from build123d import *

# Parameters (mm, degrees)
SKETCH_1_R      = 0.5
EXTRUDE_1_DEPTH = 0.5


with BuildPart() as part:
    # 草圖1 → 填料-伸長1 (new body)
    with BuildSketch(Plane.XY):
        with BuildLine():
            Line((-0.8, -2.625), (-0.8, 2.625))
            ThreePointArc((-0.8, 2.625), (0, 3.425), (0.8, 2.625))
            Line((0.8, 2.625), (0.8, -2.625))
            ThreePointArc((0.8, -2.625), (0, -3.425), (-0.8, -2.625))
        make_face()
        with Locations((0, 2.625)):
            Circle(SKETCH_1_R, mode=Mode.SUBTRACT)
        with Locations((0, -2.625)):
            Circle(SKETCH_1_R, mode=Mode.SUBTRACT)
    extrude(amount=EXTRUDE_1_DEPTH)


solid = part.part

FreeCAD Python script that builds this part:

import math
import FreeCAD as App
import Part
import Sketcher

V = App.Vector

doc = App.newDocument("Part")
body = doc.addObject("PartDesign::Body", "Body")

# Sketch on XY plane
sketch1 = body.newObject("Sketcher::SketchObject", "Sketch")
sketch1.AttachmentSupport = (doc.getObject("XY_Plane"), [""])
sketch1.MapMode = "FlatFace"
sketch1.addGeometry(Part.LineSegment(V(-0.8, 2.6, 0), V(-0.8, -2.6, 0)), False)
sketch1.addGeometry(Part.ArcOfCircle(Part.Circle(V(0, -2.6, 0), V(0, 0, 1), 0.8), math.radians(180), math.radians(360)), False)
sketch1.addGeometry(Part.LineSegment(V(0.8, -2.6, 0), V(0.8, 2.6, 0)), False)
sketch1.addGeometry(Part.ArcOfCircle(Part.Circle(V(0, 2.6, 0), V(0, 0, 1), 0.8), math.radians(0), math.radians(180)), False)
sketch1.addGeometry(Part.Circle(V(0, -2.6, 0), V(0, 0, 1), 0.5), False)
sketch1.addGeometry(Part.Circle(V(0, 2.6, 0), V(0, 0, 1), 0.5), False)
sketch1.addConstraint(Sketcher.Constraint("Tangent", 0, 2, 1, 1))
sketch1.addConstraint(Sketcher.Constraint("Tangent", 1, 2, 2, 1))
sketch1.addConstraint(Sketcher.Constraint("Tangent", 2, 2, 3, 1))
sketch1.addConstraint(Sketcher.Constraint("Tangent", 3, 2, 0, 1))
sketch1.addConstraint(Sketcher.Constraint("Vertical", 0))
sketch1.addConstraint(Sketcher.Constraint("Vertical", 2))
sketch1.addConstraint(Sketcher.Constraint("Coincident", 4, 3, 1, 3))
sketch1.addConstraint(Sketcher.Constraint("Coincident", 5, 3, 3, 3))
sketch1.addConstraint(Sketcher.Constraint("Equal", 4, 5))
sketch1.addConstraint(Sketcher.Constraint("Symmetric", 1, 3, 3, 3, -1, 1))
sketch1.addConstraint(Sketcher.Constraint("Diameter", 4, 1.0))
sketch1.addConstraint(Sketcher.Constraint("Radius", 1, 0.8))
sketch1.addConstraint(Sketcher.Constraint("DistanceY", 0, 2, 0, 1, 5.25))
pad1 = body.newObject("PartDesign::Pad", "Pad")
pad1.Profile = sketch1
pad1.Length = 0.5

doc.recompute()
